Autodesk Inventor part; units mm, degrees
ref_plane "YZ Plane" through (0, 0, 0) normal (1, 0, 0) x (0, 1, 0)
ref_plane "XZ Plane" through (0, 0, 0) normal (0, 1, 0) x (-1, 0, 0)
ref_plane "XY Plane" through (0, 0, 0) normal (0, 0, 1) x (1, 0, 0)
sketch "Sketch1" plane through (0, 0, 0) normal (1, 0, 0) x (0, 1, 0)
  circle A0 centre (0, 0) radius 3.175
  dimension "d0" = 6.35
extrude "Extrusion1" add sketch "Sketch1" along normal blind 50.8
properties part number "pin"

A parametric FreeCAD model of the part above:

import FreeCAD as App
import Part
import Sketcher
Q = App.Units.Quantity

doc = App.newDocument("Part")
params = doc.addObject("Spreadsheet::Sheet", "Params")
for row, (alias, value) in enumerate([
    ("sketch1_diameter", "0.25 in"),
    ("pad1_length", "2 in"),
], start=1):
    params.set(f"A{row}", alias)
    params.set(f"B{row}", "=" + value)
    params.setAlias(f"B{row}", alias)

body = doc.addObject("PartDesign::Body", "Body")

# Sketch on YZ plane
sketch1 = doc.addObject("Sketcher::SketchObject", "Sketch")
body.addObject(sketch1)
sketch1.AttachmentSupport = (doc.YZ_Plane, [""])
sketch1.MapMode = "FlatFace"
sketch1.addGeometry(Part.Circle(App.Vector(0, 0, 0), App.Vector(0, 0, 1), 3.175), False)
sketch1.addConstraint(Sketcher.Constraint("Coincident", 0, 3, -1, 1))
sketch1.addConstraint(Sketcher.Constraint("Diameter", 0, Q("0.25 in")))
sketch1.setExpression("Constraints[1]", "Params.sketch1_diameter")
pad1 = doc.addObject("PartDesign::Pad", "Pad")
body.addObject(pad1)
pad1.Profile = sketch1
pad1.setExpression("Length", "Params.pad1_length")

doc.recompute()
